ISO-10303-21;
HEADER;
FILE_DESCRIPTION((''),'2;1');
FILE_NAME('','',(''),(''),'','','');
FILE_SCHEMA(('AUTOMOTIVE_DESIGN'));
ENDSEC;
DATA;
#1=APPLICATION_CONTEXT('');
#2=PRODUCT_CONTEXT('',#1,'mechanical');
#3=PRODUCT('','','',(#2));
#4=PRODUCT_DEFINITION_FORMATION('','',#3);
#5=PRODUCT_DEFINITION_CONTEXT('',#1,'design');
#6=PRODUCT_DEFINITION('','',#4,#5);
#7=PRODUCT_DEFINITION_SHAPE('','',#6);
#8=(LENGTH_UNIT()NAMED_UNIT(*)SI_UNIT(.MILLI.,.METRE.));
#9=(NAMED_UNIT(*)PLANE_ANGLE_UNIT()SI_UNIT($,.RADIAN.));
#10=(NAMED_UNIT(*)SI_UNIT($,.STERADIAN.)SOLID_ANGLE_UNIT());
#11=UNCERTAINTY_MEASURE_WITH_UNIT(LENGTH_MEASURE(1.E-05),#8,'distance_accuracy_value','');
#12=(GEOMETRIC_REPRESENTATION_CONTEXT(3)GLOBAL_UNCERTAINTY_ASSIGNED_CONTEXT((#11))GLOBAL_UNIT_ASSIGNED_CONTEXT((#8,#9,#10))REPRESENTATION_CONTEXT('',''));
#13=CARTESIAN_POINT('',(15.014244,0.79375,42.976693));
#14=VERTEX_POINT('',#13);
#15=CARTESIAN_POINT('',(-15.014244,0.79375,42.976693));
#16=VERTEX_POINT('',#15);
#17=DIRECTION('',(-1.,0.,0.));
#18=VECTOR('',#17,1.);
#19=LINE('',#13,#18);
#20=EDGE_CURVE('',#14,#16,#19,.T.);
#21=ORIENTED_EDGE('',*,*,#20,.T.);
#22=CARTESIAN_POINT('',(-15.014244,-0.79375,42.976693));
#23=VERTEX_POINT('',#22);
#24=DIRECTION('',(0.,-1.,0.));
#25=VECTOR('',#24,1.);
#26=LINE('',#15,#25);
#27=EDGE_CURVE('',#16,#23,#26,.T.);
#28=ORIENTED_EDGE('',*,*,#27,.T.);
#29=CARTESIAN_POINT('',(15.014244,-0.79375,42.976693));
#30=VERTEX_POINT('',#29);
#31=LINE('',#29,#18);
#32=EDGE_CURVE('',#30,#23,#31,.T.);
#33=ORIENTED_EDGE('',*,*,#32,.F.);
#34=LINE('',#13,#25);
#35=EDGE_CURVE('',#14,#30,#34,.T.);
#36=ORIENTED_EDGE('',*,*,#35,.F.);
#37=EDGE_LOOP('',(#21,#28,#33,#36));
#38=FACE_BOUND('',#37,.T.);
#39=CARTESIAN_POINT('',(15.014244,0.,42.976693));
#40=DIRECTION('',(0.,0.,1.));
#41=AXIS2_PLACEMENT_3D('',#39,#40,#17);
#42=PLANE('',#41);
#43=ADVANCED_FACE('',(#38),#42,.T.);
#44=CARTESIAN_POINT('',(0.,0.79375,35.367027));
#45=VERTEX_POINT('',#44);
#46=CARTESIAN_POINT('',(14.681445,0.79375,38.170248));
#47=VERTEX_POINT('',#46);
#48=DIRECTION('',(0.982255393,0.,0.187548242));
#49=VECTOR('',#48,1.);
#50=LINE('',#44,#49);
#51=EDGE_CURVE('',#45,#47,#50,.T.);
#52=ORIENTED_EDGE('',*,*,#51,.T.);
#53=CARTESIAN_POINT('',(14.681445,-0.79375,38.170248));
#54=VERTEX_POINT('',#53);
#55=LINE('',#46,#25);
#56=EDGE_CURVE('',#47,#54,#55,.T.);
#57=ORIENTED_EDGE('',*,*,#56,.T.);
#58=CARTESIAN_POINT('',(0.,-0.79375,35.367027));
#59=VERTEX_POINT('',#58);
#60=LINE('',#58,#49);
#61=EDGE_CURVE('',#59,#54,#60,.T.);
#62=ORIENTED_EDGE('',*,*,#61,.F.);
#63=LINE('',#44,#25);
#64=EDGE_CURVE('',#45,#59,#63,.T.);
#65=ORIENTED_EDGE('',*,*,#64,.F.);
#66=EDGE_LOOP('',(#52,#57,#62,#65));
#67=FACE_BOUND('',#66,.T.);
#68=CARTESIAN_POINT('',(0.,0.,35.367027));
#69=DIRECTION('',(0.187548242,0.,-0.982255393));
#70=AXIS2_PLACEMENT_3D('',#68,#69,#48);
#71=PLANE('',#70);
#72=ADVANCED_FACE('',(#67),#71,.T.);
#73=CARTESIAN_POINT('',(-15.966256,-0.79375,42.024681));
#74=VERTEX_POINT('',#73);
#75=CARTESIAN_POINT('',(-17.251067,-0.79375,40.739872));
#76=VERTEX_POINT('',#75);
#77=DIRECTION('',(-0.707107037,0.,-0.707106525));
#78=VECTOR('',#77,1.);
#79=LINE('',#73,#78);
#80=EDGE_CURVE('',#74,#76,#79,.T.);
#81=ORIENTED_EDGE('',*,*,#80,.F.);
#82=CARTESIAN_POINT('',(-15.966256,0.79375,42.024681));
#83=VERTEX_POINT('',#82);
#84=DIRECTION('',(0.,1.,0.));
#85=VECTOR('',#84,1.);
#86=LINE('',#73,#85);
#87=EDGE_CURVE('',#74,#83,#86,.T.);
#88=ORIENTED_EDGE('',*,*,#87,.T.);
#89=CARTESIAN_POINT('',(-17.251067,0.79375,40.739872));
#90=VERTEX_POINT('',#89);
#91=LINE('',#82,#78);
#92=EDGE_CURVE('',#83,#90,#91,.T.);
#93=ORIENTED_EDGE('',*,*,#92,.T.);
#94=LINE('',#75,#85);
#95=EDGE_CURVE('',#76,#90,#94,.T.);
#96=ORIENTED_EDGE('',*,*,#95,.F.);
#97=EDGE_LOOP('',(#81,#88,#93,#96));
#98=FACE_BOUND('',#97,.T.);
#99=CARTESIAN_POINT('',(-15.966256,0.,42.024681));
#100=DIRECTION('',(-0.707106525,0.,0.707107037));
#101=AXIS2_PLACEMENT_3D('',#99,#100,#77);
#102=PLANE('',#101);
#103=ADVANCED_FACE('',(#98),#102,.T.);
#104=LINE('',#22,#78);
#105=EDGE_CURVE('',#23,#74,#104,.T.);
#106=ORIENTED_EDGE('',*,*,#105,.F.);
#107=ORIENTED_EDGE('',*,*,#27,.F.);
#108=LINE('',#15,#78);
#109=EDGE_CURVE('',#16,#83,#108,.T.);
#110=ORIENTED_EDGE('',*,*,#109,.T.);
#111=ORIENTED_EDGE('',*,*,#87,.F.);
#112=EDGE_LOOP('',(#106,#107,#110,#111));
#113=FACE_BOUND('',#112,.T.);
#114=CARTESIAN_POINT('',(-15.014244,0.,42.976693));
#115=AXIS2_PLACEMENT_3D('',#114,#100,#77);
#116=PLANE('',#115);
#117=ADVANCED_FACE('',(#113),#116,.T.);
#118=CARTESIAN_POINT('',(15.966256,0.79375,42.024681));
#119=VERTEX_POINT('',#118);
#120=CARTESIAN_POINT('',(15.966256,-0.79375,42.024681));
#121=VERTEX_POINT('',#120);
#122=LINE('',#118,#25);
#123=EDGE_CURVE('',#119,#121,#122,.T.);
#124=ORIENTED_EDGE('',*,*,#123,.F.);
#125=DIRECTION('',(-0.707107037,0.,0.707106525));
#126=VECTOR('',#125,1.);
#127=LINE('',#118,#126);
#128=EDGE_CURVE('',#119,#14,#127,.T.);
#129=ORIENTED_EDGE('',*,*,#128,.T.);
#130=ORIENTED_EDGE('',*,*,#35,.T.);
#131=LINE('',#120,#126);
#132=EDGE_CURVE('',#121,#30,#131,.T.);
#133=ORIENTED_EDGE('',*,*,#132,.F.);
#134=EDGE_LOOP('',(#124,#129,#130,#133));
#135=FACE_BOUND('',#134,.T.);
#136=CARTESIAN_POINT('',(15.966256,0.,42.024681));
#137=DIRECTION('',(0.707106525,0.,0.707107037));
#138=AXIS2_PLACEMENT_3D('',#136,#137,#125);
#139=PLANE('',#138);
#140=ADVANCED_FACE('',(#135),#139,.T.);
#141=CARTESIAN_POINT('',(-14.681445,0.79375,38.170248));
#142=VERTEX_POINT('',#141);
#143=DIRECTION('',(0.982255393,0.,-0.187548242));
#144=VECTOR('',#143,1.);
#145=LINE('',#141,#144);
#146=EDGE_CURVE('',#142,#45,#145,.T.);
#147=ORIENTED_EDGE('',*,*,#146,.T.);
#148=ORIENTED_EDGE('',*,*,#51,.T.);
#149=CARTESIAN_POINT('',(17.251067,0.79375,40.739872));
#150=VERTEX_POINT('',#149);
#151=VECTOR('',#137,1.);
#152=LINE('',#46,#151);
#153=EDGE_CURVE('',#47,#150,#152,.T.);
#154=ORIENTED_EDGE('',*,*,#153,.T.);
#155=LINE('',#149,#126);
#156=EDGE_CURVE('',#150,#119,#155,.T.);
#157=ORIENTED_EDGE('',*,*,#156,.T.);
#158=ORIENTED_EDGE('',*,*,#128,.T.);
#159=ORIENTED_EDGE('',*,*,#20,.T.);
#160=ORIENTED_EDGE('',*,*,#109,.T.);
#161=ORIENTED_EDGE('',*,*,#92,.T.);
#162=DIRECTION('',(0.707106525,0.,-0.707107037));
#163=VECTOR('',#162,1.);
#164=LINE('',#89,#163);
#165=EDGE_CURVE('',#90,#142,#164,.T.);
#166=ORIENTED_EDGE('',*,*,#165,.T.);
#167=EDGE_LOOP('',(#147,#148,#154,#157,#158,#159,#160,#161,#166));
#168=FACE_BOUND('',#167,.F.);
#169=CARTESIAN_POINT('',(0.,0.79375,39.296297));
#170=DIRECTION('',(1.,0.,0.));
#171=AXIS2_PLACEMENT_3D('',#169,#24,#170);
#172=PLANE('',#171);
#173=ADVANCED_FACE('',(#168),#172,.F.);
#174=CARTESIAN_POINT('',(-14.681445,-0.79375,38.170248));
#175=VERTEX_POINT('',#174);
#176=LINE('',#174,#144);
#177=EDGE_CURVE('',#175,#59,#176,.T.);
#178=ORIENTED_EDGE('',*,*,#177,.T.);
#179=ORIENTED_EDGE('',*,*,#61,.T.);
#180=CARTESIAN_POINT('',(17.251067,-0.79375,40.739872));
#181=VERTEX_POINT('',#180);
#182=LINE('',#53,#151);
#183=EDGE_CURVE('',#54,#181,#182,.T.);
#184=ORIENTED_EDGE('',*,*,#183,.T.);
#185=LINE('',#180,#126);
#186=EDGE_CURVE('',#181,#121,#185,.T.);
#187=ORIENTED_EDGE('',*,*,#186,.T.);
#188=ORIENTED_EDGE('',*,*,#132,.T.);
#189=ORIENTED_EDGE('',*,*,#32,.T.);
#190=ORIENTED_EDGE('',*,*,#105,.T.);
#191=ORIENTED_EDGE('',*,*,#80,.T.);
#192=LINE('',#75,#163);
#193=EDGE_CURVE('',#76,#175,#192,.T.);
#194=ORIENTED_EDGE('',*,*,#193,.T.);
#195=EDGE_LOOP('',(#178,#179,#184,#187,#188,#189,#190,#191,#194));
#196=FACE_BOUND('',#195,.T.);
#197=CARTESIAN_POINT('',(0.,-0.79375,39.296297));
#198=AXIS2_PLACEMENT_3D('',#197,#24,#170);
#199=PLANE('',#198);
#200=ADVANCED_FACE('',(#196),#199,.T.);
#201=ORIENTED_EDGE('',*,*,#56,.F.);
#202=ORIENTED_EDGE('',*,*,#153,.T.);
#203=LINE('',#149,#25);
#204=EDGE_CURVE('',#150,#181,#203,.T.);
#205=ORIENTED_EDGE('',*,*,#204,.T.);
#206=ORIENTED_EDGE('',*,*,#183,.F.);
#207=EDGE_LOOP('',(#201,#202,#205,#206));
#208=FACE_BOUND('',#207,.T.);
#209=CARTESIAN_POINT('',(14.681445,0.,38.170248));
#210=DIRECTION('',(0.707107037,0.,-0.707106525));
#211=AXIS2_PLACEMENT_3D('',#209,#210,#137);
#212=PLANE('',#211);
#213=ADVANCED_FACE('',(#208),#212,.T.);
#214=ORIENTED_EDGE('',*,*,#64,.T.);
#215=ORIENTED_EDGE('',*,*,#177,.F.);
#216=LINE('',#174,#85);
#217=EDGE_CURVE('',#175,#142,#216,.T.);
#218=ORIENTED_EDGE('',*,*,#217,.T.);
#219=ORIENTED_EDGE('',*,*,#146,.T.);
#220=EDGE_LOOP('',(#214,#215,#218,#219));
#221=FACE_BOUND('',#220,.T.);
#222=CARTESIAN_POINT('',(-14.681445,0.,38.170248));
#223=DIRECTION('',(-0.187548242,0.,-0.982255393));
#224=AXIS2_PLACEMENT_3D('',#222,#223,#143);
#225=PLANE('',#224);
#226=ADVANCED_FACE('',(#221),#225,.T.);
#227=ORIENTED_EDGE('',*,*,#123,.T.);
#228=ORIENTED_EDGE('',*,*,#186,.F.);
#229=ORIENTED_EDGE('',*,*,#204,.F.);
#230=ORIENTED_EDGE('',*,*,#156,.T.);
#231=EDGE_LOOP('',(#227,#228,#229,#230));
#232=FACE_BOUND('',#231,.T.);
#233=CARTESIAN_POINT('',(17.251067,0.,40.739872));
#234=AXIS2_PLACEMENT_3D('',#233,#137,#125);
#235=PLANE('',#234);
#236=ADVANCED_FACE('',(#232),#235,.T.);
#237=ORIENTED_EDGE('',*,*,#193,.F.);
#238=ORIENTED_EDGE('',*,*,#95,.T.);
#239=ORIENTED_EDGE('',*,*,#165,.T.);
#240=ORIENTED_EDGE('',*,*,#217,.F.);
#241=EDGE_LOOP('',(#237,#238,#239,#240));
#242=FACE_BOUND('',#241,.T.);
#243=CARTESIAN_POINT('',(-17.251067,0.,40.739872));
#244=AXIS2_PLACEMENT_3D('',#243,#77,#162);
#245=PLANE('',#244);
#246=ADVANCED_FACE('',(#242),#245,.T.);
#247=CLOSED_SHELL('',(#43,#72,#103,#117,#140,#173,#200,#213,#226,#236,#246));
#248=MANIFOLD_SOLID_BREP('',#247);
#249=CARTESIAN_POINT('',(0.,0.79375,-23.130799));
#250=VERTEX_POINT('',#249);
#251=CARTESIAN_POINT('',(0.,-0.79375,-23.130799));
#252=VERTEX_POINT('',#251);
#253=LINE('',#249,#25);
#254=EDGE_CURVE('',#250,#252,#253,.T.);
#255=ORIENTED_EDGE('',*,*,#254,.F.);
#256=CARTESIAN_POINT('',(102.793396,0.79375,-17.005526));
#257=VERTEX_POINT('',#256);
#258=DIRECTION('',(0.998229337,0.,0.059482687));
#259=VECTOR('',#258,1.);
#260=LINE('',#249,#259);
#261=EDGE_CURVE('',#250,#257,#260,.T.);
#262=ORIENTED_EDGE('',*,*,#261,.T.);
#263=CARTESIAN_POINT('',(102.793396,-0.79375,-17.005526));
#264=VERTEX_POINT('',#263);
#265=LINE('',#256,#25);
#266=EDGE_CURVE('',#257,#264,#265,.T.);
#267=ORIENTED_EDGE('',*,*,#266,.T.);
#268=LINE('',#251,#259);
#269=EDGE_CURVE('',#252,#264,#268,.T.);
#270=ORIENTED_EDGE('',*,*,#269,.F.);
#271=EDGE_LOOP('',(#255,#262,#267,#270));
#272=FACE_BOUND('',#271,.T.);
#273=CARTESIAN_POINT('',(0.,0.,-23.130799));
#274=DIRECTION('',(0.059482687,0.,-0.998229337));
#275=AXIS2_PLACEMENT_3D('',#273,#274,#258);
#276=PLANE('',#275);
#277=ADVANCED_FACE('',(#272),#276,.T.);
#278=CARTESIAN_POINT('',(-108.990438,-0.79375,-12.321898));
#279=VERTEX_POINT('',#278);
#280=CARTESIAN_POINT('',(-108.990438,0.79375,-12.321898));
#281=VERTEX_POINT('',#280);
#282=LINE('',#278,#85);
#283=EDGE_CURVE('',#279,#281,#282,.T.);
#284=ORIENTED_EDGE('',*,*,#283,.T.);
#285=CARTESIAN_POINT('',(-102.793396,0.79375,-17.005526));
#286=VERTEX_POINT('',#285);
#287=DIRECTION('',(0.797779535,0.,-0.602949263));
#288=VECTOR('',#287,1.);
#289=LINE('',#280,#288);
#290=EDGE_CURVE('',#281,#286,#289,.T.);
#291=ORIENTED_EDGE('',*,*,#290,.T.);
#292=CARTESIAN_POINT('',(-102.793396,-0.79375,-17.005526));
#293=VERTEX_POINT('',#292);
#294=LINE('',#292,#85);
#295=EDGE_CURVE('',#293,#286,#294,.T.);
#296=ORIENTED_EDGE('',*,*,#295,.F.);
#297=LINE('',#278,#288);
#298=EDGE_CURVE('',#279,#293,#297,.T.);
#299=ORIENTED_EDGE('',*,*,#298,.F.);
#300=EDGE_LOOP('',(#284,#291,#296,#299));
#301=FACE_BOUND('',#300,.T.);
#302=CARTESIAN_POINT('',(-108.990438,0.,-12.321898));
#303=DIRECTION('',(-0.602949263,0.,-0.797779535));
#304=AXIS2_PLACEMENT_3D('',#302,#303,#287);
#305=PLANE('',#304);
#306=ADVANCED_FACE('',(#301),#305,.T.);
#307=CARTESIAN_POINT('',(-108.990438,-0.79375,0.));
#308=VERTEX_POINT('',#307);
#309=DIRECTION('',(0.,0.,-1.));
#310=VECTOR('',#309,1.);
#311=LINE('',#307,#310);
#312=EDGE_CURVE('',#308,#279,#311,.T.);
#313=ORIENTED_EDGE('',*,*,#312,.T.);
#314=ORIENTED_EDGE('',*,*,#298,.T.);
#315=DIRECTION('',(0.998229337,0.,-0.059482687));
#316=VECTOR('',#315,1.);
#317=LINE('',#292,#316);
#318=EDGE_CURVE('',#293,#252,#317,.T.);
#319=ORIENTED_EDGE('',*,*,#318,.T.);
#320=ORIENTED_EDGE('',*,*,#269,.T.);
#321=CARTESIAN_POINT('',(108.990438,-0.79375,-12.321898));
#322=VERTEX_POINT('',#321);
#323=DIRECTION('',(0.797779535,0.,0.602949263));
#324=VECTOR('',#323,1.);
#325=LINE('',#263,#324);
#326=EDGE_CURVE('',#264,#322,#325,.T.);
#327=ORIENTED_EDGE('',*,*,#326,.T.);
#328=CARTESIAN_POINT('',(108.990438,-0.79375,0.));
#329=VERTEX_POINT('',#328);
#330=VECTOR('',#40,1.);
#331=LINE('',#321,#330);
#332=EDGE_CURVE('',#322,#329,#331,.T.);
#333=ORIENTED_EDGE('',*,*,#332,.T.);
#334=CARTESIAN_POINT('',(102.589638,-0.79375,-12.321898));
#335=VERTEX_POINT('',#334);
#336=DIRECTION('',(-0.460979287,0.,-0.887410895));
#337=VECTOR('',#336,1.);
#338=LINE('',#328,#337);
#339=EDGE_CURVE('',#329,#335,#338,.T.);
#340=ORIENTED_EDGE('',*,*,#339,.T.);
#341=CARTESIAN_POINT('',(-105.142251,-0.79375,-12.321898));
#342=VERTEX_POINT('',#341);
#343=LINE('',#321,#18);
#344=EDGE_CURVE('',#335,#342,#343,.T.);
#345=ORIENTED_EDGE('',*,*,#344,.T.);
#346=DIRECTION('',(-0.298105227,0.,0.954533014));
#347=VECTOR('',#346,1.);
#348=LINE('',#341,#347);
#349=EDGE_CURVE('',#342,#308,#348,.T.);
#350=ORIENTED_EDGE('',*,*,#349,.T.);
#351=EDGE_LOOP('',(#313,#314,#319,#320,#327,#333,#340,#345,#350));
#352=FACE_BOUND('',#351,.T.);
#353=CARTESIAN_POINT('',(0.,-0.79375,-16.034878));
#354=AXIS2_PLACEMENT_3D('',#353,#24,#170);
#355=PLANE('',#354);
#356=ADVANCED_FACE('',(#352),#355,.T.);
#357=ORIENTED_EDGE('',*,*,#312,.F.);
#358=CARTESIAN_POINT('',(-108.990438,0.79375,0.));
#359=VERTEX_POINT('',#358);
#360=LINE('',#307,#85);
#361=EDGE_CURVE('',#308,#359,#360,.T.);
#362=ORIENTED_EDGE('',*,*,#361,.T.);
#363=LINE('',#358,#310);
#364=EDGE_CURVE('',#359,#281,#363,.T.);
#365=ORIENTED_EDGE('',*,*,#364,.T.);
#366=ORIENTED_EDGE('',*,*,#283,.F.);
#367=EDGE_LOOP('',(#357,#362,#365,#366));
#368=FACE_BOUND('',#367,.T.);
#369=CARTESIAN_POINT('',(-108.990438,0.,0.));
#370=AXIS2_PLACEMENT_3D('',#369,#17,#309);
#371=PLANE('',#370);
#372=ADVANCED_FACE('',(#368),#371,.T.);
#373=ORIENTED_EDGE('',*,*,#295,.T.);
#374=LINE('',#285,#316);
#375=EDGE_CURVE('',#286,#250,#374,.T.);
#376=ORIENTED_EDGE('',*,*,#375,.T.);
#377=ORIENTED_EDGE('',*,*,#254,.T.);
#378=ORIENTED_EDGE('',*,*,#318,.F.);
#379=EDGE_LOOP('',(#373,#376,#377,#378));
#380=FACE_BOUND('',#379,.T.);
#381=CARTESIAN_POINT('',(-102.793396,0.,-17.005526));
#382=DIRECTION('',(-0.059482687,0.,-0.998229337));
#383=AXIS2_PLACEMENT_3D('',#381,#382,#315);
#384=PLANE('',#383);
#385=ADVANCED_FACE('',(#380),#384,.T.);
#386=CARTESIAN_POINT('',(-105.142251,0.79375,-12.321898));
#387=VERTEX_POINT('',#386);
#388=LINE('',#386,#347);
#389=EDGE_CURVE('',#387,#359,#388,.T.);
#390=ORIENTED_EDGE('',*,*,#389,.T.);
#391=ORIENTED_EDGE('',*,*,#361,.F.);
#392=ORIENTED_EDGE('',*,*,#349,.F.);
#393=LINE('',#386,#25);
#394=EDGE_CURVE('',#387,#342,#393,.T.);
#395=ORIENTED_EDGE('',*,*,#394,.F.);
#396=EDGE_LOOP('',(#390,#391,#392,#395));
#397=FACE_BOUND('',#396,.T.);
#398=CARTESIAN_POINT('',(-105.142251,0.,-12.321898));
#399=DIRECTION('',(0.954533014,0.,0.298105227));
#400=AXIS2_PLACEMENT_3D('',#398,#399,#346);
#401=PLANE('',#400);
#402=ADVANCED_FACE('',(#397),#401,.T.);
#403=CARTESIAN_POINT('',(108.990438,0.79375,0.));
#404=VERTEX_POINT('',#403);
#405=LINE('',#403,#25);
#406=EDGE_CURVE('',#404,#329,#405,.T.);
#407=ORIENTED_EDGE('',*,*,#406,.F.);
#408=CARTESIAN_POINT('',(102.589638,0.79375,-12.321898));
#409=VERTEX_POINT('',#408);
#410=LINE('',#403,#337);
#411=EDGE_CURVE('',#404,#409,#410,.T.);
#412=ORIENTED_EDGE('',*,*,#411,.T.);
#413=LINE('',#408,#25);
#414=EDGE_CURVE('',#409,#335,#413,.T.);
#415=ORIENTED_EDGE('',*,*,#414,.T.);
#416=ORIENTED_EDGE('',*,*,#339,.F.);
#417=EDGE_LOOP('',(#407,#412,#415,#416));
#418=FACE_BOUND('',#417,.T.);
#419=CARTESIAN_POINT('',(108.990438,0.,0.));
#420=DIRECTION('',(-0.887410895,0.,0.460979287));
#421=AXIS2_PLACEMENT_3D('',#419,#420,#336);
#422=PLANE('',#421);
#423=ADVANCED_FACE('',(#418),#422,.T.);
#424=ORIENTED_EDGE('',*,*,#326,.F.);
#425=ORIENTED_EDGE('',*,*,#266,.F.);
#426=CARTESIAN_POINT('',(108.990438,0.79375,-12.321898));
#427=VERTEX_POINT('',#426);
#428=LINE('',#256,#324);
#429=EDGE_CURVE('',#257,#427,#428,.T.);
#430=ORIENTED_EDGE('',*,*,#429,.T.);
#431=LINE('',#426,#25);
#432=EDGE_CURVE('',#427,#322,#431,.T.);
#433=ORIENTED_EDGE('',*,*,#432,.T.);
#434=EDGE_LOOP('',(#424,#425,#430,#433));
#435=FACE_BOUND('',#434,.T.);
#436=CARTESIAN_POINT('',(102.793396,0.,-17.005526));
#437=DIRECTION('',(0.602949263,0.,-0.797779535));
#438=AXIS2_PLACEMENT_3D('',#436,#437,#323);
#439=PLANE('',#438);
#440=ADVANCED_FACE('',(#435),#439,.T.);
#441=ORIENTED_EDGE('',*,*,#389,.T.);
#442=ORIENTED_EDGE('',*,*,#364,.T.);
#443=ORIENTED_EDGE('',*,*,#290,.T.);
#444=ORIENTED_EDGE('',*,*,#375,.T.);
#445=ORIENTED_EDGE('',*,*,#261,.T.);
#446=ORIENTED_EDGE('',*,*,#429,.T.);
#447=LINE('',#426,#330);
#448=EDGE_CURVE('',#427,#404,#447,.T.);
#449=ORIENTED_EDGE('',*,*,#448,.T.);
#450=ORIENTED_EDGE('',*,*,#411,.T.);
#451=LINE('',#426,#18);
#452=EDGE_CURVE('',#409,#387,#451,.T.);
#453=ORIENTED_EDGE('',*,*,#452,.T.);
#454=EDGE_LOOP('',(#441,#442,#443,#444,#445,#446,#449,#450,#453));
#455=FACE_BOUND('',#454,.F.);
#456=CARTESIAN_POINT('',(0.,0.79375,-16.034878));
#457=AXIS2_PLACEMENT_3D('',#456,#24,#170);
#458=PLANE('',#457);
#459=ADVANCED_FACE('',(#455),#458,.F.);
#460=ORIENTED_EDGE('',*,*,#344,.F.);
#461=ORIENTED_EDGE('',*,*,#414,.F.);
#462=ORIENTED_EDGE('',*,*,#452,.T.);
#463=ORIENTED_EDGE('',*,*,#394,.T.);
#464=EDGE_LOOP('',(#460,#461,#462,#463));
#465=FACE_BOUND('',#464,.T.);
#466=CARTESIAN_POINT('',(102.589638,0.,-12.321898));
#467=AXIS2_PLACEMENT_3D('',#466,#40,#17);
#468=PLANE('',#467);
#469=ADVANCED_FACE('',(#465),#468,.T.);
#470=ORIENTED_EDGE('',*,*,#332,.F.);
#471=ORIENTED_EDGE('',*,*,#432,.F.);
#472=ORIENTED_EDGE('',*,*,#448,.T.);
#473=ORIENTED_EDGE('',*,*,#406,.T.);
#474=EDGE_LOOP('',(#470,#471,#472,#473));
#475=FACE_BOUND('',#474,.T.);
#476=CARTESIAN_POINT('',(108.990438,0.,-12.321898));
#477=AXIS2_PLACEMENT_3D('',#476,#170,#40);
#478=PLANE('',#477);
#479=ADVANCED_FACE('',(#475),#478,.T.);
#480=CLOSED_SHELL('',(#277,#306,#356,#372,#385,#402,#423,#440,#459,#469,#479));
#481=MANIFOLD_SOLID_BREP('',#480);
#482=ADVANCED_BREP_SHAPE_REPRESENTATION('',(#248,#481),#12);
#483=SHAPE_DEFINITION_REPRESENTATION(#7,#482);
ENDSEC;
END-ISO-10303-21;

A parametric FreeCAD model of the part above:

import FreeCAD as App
import Part
import Sketcher
Q = App.Units.Quantity


def add_polygon(sketch, points):
    """Adds a closed chain of lines whose ends are joined by coincident constraints."""
    first, n = sketch.GeometryCount, len(points)
    for a, b in zip(points, points[1:] + points[:1]):
        sketch.addGeometry(Part.LineSegment(App.Vector(*a, 0), App.Vector(*b, 0)), False)
    for i in range(n):
        sketch.addConstraint(Sketcher.Constraint("Coincident", first + i, 2, first + (i + 1) % n, 1))

doc = App.newDocument("Part")
body = doc.addObject("PartDesign::Body", "Body")

sketch1 = doc.addObject("Sketcher::SketchObject", "Sketch")
body.addObject(sketch1)
sketch1.AttachmentSupport = (doc.XZ_Plane, [""])
sketch1.MapMode = "FlatFace"
add_polygon(sketch1, [(-103, -17), (0, -23), (103, -17), (109, -12), (109, 0), (103, -12), (-105, -12), (-109, 0), (-109, -12)])
sketch1.addConstraint([
    Sketcher.Constraint("Vertical", 3),
    Sketcher.Constraint("Horizontal", 5),
    Sketcher.Constraint("Vertical", 7),
    Sketcher.Constraint("Symmetric", 3, 2, 6, 2, -1, 1),
    Sketcher.Constraint("Symmetric", 1, 2, 8, 2, -2),
    Sketcher.Constraint("PointOnObject", 0, 2, -2),
    Sketcher.Constraint("PointOnObject", 3, 2, -1),
    Sketcher.Constraint("Horizontal", 2, 2, 4, 2),
    Sketcher.Constraint("Horizontal", 5, 2, 7, 2),
    Sketcher.Constraint("DistanceX", 4, 2, 2, 2, Q("0.252 in")),
    Sketcher.Constraint("DistanceX", 5, 2, 5, 1, Q("207.731889 mm")),
    Sketcher.Constraint("DistanceY", 0, 2, -1, 1, Q("23.130799 mm")),
    Sketcher.Constraint("DistanceY", 0, 2, 2, 2, Q("10.808901 mm")),
    Sketcher.Constraint("Distance", 0, Q("102.975731 mm")),
    Sketcher.Constraint("DistanceX", -1, 1, 2, 2, Q("108.990438 mm")),
    Sketcher.Constraint("Distance", 2, Q("7.767864 mm")),
])
pad1 = doc.addObject("PartDesign::Pad", "Pad")
body.addObject(pad1)
pad1.Profile = sketch1
pad1.Length = Q("0.0625 in")
pad1.Midplane = True
body2 = doc.addObject("PartDesign::Body", "Body001")

sketch2 = doc.addObject("Sketcher::SketchObject", "Sketch001")
body2.addObject(sketch2)
sketch2.AttachmentSupport = (doc.getObject("XZ_Plane001"), [""])
sketch2.MapMode = "FlatFace"
add_polygon(sketch2, [(-14.7, 38.2), (0, 35.4), (14.7, 38.2), (17.3, 40.7), (16, 42), (15, 43), (-15, 43), (-16, 42), (-17.3, 40.7)])
sketch2.addConstraint([
    Sketcher.Constraint("Horizontal", 5),
    Sketcher.Constraint("Symmetric", 3, 2, 6, 2, -2),
    Sketcher.Constraint("Symmetric", 2, 2, 7, 2, -2),
    Sketcher.Constraint("Symmetric", 1, 2, 8, 2, -2),
    Sketcher.Constraint("PointOnObject", 0, 2, -2),
    Sketcher.Constraint("Perpendicular", 2, 3),
    Sketcher.Constraint("Parallel", 3, 4),
    Sketcher.Constraint("Perpendicular", 4, 6),
    Sketcher.Constraint("Parallel", 6, 7),
    Sketcher.Constraint("DistanceX", 5, 2, 5, 1, Q("30.028488 mm")),
    Sketcher.Constraint("DistanceX", 1, 2, 4, 2, Q("0.332799 mm")),
    Sketcher.Constraint("DistanceX", 5, 2, 3, 2, Q("30.9805 mm")),
    Sketcher.Constraint("Distance", 0, Q("14.946668 mm")),
    Sketcher.Constraint("DistanceY", -1, 1, 1, 2, Q("38.170248 mm")),
    Sketcher.Constraint("DistanceY", -1, 1, 2, 2, Q("40.739872 mm")),
])
pad2 = doc.addObject("PartDesign::Pad", "Pad001")
body2.addObject(pad2)
pad2.Profile = sketch2
pad2.Length = Q("0.0625 in")
pad2.Midplane = True

doc.recompute()
